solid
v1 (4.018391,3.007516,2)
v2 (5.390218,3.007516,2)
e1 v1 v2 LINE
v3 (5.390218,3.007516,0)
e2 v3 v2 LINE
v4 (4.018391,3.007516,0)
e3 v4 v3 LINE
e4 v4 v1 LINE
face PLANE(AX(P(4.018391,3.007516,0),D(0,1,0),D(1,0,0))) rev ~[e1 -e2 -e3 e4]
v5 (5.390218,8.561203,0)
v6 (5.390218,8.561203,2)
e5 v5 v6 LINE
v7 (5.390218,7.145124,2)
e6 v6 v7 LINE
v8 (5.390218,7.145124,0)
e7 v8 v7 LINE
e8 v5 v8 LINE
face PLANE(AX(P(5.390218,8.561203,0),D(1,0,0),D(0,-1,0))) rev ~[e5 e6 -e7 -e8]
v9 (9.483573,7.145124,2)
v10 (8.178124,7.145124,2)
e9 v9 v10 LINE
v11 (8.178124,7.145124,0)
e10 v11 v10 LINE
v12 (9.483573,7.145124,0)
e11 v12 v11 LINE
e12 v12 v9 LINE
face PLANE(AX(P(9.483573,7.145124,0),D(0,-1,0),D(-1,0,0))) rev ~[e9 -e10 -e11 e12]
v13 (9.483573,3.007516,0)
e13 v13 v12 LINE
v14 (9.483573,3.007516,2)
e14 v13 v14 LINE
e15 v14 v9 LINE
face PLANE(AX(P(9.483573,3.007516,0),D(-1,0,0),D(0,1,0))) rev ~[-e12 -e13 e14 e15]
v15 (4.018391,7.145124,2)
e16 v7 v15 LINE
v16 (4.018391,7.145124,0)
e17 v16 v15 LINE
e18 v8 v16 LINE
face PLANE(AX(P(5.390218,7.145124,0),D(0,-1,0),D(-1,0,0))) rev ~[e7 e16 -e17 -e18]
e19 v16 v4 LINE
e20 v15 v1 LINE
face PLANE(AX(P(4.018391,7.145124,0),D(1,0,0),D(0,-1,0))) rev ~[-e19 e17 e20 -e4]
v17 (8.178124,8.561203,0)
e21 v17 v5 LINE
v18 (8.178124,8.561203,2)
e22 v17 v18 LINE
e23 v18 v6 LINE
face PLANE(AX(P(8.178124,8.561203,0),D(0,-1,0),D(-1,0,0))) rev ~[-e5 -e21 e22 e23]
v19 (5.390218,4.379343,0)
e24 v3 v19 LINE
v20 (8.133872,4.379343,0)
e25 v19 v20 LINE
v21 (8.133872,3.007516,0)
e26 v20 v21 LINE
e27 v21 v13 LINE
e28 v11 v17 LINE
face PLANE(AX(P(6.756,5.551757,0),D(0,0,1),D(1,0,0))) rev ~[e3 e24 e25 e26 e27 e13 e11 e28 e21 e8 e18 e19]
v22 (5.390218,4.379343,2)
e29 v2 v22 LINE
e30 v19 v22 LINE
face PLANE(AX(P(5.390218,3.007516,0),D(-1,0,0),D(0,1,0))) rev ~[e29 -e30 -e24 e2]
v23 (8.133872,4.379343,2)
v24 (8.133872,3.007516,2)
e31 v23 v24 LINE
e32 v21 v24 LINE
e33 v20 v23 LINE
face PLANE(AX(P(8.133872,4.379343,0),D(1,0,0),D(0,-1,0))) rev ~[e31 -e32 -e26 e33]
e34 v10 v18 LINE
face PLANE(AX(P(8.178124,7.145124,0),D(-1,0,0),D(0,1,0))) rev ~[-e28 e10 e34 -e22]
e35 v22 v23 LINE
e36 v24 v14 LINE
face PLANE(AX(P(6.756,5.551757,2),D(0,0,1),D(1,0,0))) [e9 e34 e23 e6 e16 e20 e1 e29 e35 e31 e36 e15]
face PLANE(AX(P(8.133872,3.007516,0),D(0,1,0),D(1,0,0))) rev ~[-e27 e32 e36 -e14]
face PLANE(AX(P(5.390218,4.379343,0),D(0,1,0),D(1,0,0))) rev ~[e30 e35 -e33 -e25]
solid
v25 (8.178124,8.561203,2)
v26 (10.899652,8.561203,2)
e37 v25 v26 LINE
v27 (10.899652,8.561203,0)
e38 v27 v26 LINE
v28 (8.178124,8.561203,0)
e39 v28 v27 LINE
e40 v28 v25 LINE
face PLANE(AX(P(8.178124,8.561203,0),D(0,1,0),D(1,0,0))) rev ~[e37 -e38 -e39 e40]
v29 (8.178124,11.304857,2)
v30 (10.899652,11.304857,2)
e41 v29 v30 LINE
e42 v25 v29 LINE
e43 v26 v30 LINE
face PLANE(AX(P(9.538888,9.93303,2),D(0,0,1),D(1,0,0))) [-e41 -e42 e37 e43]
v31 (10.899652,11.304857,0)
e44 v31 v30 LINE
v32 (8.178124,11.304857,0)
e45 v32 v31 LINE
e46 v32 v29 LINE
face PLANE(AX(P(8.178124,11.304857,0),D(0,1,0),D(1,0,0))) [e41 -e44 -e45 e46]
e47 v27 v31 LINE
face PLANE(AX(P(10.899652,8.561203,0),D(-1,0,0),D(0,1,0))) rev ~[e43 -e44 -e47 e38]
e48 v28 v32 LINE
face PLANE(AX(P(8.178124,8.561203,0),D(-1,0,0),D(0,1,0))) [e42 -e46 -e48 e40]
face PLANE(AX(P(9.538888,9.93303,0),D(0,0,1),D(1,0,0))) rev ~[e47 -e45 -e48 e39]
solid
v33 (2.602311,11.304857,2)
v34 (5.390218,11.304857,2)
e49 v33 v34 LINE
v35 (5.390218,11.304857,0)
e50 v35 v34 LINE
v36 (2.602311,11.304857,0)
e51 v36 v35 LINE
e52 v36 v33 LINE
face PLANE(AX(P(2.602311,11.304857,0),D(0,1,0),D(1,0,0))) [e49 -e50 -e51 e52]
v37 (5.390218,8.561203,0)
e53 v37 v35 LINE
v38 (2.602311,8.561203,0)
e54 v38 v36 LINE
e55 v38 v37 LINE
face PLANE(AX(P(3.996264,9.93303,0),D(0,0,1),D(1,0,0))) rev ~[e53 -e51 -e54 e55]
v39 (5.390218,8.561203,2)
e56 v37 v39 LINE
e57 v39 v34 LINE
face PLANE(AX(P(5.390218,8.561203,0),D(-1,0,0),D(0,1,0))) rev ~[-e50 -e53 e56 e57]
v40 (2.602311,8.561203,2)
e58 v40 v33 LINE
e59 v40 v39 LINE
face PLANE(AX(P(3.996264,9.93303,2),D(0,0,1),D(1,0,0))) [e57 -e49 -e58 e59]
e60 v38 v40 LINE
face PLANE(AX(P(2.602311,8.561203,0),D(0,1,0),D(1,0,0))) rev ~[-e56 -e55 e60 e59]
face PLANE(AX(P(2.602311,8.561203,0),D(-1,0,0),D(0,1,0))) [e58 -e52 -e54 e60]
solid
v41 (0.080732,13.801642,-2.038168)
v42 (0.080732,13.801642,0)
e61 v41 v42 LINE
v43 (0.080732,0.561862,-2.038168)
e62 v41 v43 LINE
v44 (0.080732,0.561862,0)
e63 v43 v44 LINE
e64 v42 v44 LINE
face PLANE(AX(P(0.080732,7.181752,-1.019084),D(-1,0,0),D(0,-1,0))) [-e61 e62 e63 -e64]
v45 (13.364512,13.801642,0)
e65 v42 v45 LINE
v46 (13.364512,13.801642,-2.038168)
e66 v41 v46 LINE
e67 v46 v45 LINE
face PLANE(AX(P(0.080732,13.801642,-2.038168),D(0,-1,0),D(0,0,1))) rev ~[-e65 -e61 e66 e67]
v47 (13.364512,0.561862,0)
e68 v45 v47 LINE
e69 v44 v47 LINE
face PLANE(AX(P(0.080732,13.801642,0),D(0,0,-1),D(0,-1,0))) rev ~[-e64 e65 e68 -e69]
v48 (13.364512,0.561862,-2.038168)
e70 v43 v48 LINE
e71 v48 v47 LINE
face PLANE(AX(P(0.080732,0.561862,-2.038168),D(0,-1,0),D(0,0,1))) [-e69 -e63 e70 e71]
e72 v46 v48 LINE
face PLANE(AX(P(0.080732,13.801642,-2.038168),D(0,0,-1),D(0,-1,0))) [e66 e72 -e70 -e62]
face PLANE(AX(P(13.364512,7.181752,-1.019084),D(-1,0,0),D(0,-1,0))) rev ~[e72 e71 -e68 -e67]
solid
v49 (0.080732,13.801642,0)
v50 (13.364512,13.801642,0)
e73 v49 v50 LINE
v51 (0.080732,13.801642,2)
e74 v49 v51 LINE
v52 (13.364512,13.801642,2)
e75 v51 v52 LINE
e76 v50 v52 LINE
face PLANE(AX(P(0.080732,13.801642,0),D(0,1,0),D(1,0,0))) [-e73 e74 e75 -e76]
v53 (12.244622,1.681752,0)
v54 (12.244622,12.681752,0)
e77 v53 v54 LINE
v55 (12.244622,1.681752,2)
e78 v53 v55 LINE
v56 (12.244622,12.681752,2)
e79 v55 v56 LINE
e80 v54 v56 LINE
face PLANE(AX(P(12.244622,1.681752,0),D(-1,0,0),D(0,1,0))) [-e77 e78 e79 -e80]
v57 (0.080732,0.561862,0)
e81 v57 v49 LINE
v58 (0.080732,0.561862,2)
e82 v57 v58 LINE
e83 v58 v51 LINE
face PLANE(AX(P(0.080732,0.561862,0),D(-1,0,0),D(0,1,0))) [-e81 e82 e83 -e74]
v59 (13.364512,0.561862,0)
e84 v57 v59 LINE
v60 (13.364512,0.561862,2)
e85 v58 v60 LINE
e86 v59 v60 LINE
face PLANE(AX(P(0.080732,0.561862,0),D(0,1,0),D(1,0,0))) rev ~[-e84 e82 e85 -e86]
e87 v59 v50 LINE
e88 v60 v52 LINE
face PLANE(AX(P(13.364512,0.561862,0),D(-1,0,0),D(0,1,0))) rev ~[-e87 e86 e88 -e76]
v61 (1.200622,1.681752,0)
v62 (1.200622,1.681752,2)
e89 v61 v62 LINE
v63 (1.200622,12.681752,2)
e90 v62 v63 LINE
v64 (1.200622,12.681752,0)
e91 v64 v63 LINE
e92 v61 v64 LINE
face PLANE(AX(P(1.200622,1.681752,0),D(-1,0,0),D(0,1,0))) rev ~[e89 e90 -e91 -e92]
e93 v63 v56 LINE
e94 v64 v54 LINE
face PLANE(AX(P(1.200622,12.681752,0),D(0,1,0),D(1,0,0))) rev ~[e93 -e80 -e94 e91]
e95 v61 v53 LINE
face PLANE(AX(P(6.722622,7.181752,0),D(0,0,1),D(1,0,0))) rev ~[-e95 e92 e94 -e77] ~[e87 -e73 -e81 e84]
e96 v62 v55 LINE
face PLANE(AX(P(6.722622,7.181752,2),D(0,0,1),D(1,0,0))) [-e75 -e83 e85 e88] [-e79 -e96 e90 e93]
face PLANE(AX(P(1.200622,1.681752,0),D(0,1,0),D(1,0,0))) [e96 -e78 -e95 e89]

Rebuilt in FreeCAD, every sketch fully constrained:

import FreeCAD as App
import Part
import Sketcher


def add_polygon(sketch, points):
    """Adds a closed chain of lines whose ends are joined by coincident constraints."""
    first, n = sketch.GeometryCount, len(points)
    for a, b in zip(points, points[1:] + points[:1]):
        sketch.addGeometry(Part.LineSegment(App.Vector(*a, 0), App.Vector(*b, 0)), False)
    for i in range(n):
        sketch.addConstraint(Sketcher.Constraint("Coincident", first + i, 2, first + (i + 1) % n, 1))

doc = App.newDocument("Part")
body = doc.addObject("PartDesign::Body", "Body")
body.AllowCompound = True

# Sketch on XY plane
sketch1 = doc.addObject("Sketcher::SketchObject", "Sketch")
body.addObject(sketch1)
sketch1.AttachmentSupport = (doc.XY_Plane, [""])
sketch1.MapMode = "FlatFace"
add_polygon(sketch1, [(0.1, 13.8), (0.1, 0.6), (13.4, 0.6), (13.4, 13.8)])  # lines 0-3
add_polygon(sketch1, [(12.2, 1.7), (1.2, 1.7), (1.2, 12.7), (12.2, 12.7)])  # lines 4-7
add_polygon(sketch1, [(8.2, 8.6), (5.4, 8.6), (5.4, 7.1), (4, 7.1), (4, 3), (5.4, 3), (5.4, 4.4), (8.1, 4.4), (8.1, 3), (9.5, 3), (9.5, 7.1), (8.2, 7.1)])  # lines 8-19
add_polygon(sketch1, [(2.6, 11.3), (2.6, 8.6), (5.4, 8.6), (5.4, 11.3)])  # lines 20-23
add_polygon(sketch1, [(8.2, 11.3), (8.2, 8.6), (10.9, 8.6), (10.9, 11.3)])  # lines 24-27
sketch1.addConstraint([
    Sketcher.Constraint("Vertical", 0),
    Sketcher.Constraint("Horizontal", 1),
    Sketcher.Constraint("Vertical", 2),
    Sketcher.Constraint("Horizontal", 3),
    Sketcher.Constraint("Horizontal", 4),
    Sketcher.Constraint("Vertical", 5),
    Sketcher.Constraint("Horizontal", 6),
    Sketcher.Constraint("Vertical", 7),
    Sketcher.Constraint("Horizontal", 8),
    Sketcher.Constraint("Vertical", 9),
    Sketcher.Constraint("Horizontal", 10),
    Sketcher.Constraint("Vertical", 11),
    Sketcher.Constraint("Horizontal", 12),
    Sketcher.Constraint("Vertical", 13),
    Sketcher.Constraint("Horizontal", 14),
    Sketcher.Constraint("Vertical", 15),
    Sketcher.Constraint("Horizontal", 16),
    Sketcher.Constraint("Vertical", 17),
    Sketcher.Constraint("Horizontal", 18),
    Sketcher.Constraint("Vertical", 19),
    Sketcher.Constraint("Vertical", 20),
    Sketcher.Constraint("Horizontal", 21),
    Sketcher.Constraint("Vertical", 22),
    Sketcher.Constraint("Horizontal", 23),
    Sketcher.Constraint("Vertical", 24),
    Sketcher.Constraint("Horizontal", 25),
    Sketcher.Constraint("Vertical", 26),
    Sketcher.Constraint("Horizontal", 27),
    Sketcher.Constraint("Coincident", 21, 2, 8, 2),
    Sketcher.Constraint("Coincident", 24, 2, 19, 2),
    Sketcher.Constraint("Horizontal", 12, 2, 15, 2),
    Sketcher.Constraint("Horizontal", 10, 2, 17, 2),
    Sketcher.Constraint("Horizontal", 23, 2, 26, 2),
    Sketcher.Constraint("Vertical", 9, 2, 12, 2),
    Sketcher.Constraint("Equal", 8, 21),
    Sketcher.Constraint("Equal", 12, 13),
    Sketcher.Constraint("Equal", 14, 20),
    Sketcher.Constraint("DistanceY", 5, 1, 5, 2, 11.0),
    Sketcher.Constraint("DistanceX", 4, 2, 4, 1, 11.044),
    Sketcher.Constraint("DistanceX", 16, 1, 16, 2, 1.349701),
    Sketcher.Constraint("DistanceX", 1, 1, 1, 2, 13.28378),
    Sketcher.Constraint("DistanceX", 18, 2, 18, 1, 1.305449),
    Sketcher.Constraint("DistanceY", 0, 2, 0, 1, 13.23978),
    Sketcher.Constraint("DistanceY", 9, 2, 9, 1, 1.416079),
    Sketcher.Constraint("DistanceY", 11, 2, 11, 1, 4.137608),
    Sketcher.Constraint("DistanceX", 8, 2, 8, 1, 2.787906),
    Sketcher.Constraint("DistanceX", 10, 2, 10, 1, 1.371827),
    Sketcher.Constraint("DistanceX", 25, 1, 25, 2, 2.721528),
    Sketcher.Constraint("DistanceY", -1, 1, 0, 2, 0.561862),
    Sketcher.Constraint("DistanceY", -1, 1, 4, 2, 1.681752),
    Sketcher.Constraint("DistanceX", -1, 1, 10, 2, 4.018391),
    Sketcher.Constraint("DistanceX", 0, 2, 4, 2, 1.11989),
    Sketcher.Constraint("DistanceY", 8, 2, 5, 2, 4.120549),
    Sketcher.Constraint("DistanceX", 4, 2, 10, 2, 2.817769),
])
pad1 = doc.addObject("PartDesign::Pad", "Pad")
body.addObject(pad1)
pad1.Profile = sketch1
pad1.Length = 2
body2 = doc.addObject("PartDesign::Body", "Body001")

# Sketch on YZ plane
sketch2 = doc.addObject("Sketcher::SketchObject", "Sketch001")
body2.addObject(sketch2)
sketch2.AttachmentSupport = (doc.getObject("YZ_Plane001"), [""])
sketch2.MapMode = "FlatFace"
sketch2.AttachmentOffset = App.Placement(App.Vector(0, 0, 0.080732), App.Rotation())
add_polygon(sketch2, [(13.8, 0), (13.8, -2), (0.6, -2), (0.6, 0)])  # lines 0-3
sketch2.addConstraint([
    Sketcher.Constraint("Vertical", 0),
    Sketcher.Constraint("Horizontal", 1),
    Sketcher.Constraint("Vertical", 2),
    Sketcher.Constraint("Horizontal", 3),
    Sketcher.Constraint("PointOnObject", 2, 2, -1),
    Sketcher.Constraint("DistanceX", 1, 2, 1, 1, 13.23978),
    Sketcher.Constraint("DistanceY", 0, 2, 0, 1, 2.038168),
    Sketcher.Constraint("DistanceX", -1, 1, 0, 2, 13.801642),
])
pad2 = doc.addObject("PartDesign::Pad", "Pad001")
body2.addObject(pad2)
pad2.Profile = sketch2
pad2.Length = 13.28378

doc.recompute()
